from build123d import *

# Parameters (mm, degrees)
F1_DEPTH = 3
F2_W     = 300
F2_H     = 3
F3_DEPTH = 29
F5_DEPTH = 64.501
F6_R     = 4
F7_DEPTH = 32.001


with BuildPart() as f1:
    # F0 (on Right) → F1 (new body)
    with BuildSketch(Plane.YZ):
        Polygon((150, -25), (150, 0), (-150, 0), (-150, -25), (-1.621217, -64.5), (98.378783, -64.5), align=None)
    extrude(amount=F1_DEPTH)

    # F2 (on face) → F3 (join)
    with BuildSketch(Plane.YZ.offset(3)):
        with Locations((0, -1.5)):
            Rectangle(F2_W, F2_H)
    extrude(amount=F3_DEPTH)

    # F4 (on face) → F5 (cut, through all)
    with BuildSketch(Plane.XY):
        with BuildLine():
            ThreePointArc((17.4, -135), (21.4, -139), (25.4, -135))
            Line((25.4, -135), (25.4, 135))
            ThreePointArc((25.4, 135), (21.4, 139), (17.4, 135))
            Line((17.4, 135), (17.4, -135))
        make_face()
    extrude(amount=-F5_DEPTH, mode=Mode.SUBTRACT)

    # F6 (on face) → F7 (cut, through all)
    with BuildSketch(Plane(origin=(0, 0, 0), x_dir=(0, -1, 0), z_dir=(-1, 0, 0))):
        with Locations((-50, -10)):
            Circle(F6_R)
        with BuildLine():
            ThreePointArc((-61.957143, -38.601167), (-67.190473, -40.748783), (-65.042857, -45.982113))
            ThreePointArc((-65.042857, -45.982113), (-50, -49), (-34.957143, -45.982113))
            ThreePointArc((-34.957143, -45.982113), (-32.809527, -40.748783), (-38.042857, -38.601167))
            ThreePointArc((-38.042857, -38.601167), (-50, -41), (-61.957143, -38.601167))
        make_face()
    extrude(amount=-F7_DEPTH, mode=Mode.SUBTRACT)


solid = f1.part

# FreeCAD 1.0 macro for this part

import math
import FreeCAD as App
import Part
import Sketcher

V = App.Vector


def add_polygon(sketch, points):
    """Adds a closed chain of lines whose ends are joined by coincident constraints."""
    first, n = sketch.GeometryCount, len(points)
    for a, b in zip(points, points[1:] + points[:1]):
        sketch.addGeometry(Part.LineSegment(App.Vector(*a, 0), App.Vector(*b, 0)), False)
    for i in range(n):
        sketch.addConstraint(Sketcher.Constraint("Coincident", first + i, 2, first + (i + 1) % n, 1))

doc = App.newDocument("Part")
params = doc.addObject("Spreadsheet::Sheet", "Params")
for row, (alias, value) in enumerate([
    ("sketch1_width", "300 mm"),
    ("sketch1_width2", "100 mm"),
    ("sketch1_height", "25 mm"),
    ("sketch1_length", "65 mm"),
    ("pad1_length", "3 mm"),
    ("sketch2_width", "300 mm"),
    ("sketch2_height", "3 mm"),
    ("pad2_length", "29 mm"),
    ("sketch3_radius", "4 mm"),
    ("sketch3_height", "270 mm"),
    ("sketch4_diameter", "8 mm"),
    ("sketch4_radius", "39 mm"),
], start=1):
    params.set(f"A{row}", alias)
    params.set(f"B{row}", "=" + value)
    params.setAlias(f"B{row}", alias)

body = doc.addObject("PartDesign::Body", "Body")

# Sketch on YZ plane
sketch1 = body.newObject("Sketcher::SketchObject", "Sketch")
sketch1.AttachmentSupport = (doc.getObject("YZ_Plane"), [""])
sketch1.MapMode = "FlatFace"
add_polygon(sketch1, [(150, -25), (150, 0), (-150, 0), (-150, -25), (-2, -64), (98, -64)])  # lines 0-5
sketch1.addConstraint([
    Sketcher.Constraint("Vertical", 0),
    Sketcher.Constraint("Horizontal", 1),
    Sketcher.Constraint("Vertical", 2),
    Sketcher.Constraint("Horizontal", 4),
    Sketcher.Constraint("Symmetric", 0, 2, 1, 2, -1, 1),
    Sketcher.Constraint("Horizontal", 2, 2, 5, 2),
    Sketcher.Constraint("DistanceX", 1, 2, 1, 1, 300.0),
    Sketcher.Constraint("DistanceX", 4, 1, 4, 2, 100.0),
    Sketcher.Constraint("DistanceY", 0, 1, 0, 2, 25.0),
    Sketcher.Constraint("Distance", 5, 65.0),
    Sketcher.Constraint("DistanceY", 3, 2, -1, 1, 64.5),
])
sketch1.setExpression("Constraints[12]", "Params.sketch1_width")
sketch1.setExpression("Constraints[13]", "Params.sketch1_width2")
sketch1.setExpression("Constraints[14]", "Params.sketch1_height")
sketch1.setExpression("Constraints[15]", "Params.sketch1_length")
pad1 = body.newObject("PartDesign::Pad", "Pad")
pad1.Profile = sketch1
pad1.setExpression("Length", "Params.pad1_length")

# Sketch on YZ plane
sketch2 = body.newObject("Sketcher::SketchObject", "Sketch001")
sketch2.AttachmentSupport = (doc.getObject("YZ_Plane"), [""])
sketch2.MapMode = "FlatFace"
sketch2.AttachmentOffset = App.Placement(V(0, 0, 3), App.Rotation())
add_polygon(sketch2, [(-150, 0), (-150, -3), (150, -3), (150, 0)])  # lines 0-3
sketch2.addConstraint([
    Sketcher.Constraint("Vertical", 0),
    Sketcher.Constraint("Horizontal", 1),
    Sketcher.Constraint("Vertical", 2),
    Sketcher.Constraint("Horizontal", 3),
    Sketcher.Constraint("Symmetric", 2, 2, 3, 2, -1, 1),
    Sketcher.Constraint("DistanceX", 1, 1, 1, 2, 300.0),
    Sketcher.Constraint("DistanceY", 0, 2, 0, 1, 3.0),
])
sketch2.setExpression("Constraints[9]", "Params.sketch2_width")
sketch2.setExpression("Constraints[10]", "Params.sketch2_height")
pad2 = body.newObject("PartDesign::Pad", "Pad001")
pad2.Profile = sketch2
pad2.setExpression("Length", "Params.pad2_length")

# Sketch on XY plane
sketch3 = body.newObject("Sketcher::SketchObject", "Sketch002")
sketch3.AttachmentSupport = (doc.getObject("XY_Plane"), [""])
sketch3.MapMode = "FlatFace"
sketch3.addGeometry([
    Part.ArcOfCircle(Part.Circle(V(21.4, -135, 0), V(0, 0, 1), 4), math.radians(180), math.radians(360)),
    Part.LineSegment(V(25.4, -135, 0), V(25.4, 135, 0)),
    Part.ArcOfCircle(Part.Circle(V(21.4, 135, 0), V(0, 0, 1), 4), math.radians(0), math.radians(180)),
    Part.LineSegment(V(17.4, 135, 0), V(17.4, -135, 0)),
], False)
sketch3.addConstraint([
    Sketcher.Constraint("Tangent", 0, 2, 1, 1),
    Sketcher.Constraint("Tangent", 1, 2, 2, 1),
    Sketcher.Constraint("Tangent", 2, 2, 3, 1),
    Sketcher.Constraint("Tangent", 3, 2, 0, 1),
    Sketcher.Constraint("Vertical", 1),
    Sketcher.Constraint("Vertical", 3),
    Sketcher.Constraint("Radius", 0, 4.0),
    Sketcher.Constraint("DistanceY", 1, 1, 1, 2, 270.0),
    Sketcher.Constraint("DistanceY", 0, 3, -1, 1, 135.0),
    Sketcher.Constraint("DistanceX", -1, 1, 0, 3, 21.4),
])
sketch3.setExpression("Constraints[6]", "Params.sketch3_radius")
sketch3.setExpression("Constraints[7]", "Params.sketch3_height")
pocket1 = body.newObject("PartDesign::Pocket", "Pocket")
pocket1.Profile = sketch3
pocket1.Type = "ThroughAll"

# Sketch on YZ plane
sketch4 = body.newObject("Sketcher::SketchObject", "Sketch003")
sketch4.AttachmentSupport = (doc.getObject("YZ_Plane"), [""])
sketch4.MapMode = "FlatFace"
sketch4.addGeometry([
    Part.Circle(V(50, -10, 0), V(0, 0, 1), 4),  # 0
    Part.ArcOfCircle(Part.Circle(V(63.5, -42.3, 0), V(0, 0, 1), 4), math.radians(-67), math.radians(113)),  # 1
    Part.ArcOfCircle(Part.Circle(V(50, -10, 0), V(0, 0, 1), 39), math.radians(-113), math.radians(-67)),  # 2
    Part.ArcOfCircle(Part.Circle(V(36.5, -42.3, 0), V(0, 0, 1), 4), math.radians(67), math.radians(247)),  # 3
    Part.ArcOfCircle(Part.Circle(V(50, -10, 0), V(0, 0, 1), 31), math.radians(-113), math.radians(-67)),  # 4
], False)
sketch4.addConstraint([
    Sketcher.Constraint("Tangent", 1, 1, 2, 2),
    Sketcher.Constraint("Tangent", 2, 1, 3, 2),
    Sketcher.Constraint("Tangent", 3, 1, 4, 1),
    Sketcher.Constraint("Tangent", 4, 2, 1, 2),
    Sketcher.Constraint("Coincident", 2, 3, 0, 3),
    Sketcher.Constraint("Coincident", 4, 3, 0, 3),
    Sketcher.Constraint("Equal", 0, 1),
    Sketcher.Constraint("Horizontal", 1, 3, 3, 3),
    Sketcher.Constraint("Diameter", 0, 8.0),
    Sketcher.Constraint("Radius", 2, 39.0),
    Sketcher.Constraint("DistanceX", -1, 1, 0, 3, 50.0),
    Sketcher.Constraint("DistanceY", 0, 3, -1, 1, 10.0),
    Sketcher.Constraint("DistanceX", 3, 3, 1, 3, 27.0),
])
sketch4.setExpression("Constraints[8]", "Params.sketch4_diameter")
sketch4.setExpression("Constraints[9]", "Params.sketch4_radius")
pocket2 = body.newObject("PartDesign::Pocket", "Pocket001")
pocket2.Profile = sketch4
pocket2.Type = "ThroughAll"
pocket2.Reversed = True

doc.recompute()
